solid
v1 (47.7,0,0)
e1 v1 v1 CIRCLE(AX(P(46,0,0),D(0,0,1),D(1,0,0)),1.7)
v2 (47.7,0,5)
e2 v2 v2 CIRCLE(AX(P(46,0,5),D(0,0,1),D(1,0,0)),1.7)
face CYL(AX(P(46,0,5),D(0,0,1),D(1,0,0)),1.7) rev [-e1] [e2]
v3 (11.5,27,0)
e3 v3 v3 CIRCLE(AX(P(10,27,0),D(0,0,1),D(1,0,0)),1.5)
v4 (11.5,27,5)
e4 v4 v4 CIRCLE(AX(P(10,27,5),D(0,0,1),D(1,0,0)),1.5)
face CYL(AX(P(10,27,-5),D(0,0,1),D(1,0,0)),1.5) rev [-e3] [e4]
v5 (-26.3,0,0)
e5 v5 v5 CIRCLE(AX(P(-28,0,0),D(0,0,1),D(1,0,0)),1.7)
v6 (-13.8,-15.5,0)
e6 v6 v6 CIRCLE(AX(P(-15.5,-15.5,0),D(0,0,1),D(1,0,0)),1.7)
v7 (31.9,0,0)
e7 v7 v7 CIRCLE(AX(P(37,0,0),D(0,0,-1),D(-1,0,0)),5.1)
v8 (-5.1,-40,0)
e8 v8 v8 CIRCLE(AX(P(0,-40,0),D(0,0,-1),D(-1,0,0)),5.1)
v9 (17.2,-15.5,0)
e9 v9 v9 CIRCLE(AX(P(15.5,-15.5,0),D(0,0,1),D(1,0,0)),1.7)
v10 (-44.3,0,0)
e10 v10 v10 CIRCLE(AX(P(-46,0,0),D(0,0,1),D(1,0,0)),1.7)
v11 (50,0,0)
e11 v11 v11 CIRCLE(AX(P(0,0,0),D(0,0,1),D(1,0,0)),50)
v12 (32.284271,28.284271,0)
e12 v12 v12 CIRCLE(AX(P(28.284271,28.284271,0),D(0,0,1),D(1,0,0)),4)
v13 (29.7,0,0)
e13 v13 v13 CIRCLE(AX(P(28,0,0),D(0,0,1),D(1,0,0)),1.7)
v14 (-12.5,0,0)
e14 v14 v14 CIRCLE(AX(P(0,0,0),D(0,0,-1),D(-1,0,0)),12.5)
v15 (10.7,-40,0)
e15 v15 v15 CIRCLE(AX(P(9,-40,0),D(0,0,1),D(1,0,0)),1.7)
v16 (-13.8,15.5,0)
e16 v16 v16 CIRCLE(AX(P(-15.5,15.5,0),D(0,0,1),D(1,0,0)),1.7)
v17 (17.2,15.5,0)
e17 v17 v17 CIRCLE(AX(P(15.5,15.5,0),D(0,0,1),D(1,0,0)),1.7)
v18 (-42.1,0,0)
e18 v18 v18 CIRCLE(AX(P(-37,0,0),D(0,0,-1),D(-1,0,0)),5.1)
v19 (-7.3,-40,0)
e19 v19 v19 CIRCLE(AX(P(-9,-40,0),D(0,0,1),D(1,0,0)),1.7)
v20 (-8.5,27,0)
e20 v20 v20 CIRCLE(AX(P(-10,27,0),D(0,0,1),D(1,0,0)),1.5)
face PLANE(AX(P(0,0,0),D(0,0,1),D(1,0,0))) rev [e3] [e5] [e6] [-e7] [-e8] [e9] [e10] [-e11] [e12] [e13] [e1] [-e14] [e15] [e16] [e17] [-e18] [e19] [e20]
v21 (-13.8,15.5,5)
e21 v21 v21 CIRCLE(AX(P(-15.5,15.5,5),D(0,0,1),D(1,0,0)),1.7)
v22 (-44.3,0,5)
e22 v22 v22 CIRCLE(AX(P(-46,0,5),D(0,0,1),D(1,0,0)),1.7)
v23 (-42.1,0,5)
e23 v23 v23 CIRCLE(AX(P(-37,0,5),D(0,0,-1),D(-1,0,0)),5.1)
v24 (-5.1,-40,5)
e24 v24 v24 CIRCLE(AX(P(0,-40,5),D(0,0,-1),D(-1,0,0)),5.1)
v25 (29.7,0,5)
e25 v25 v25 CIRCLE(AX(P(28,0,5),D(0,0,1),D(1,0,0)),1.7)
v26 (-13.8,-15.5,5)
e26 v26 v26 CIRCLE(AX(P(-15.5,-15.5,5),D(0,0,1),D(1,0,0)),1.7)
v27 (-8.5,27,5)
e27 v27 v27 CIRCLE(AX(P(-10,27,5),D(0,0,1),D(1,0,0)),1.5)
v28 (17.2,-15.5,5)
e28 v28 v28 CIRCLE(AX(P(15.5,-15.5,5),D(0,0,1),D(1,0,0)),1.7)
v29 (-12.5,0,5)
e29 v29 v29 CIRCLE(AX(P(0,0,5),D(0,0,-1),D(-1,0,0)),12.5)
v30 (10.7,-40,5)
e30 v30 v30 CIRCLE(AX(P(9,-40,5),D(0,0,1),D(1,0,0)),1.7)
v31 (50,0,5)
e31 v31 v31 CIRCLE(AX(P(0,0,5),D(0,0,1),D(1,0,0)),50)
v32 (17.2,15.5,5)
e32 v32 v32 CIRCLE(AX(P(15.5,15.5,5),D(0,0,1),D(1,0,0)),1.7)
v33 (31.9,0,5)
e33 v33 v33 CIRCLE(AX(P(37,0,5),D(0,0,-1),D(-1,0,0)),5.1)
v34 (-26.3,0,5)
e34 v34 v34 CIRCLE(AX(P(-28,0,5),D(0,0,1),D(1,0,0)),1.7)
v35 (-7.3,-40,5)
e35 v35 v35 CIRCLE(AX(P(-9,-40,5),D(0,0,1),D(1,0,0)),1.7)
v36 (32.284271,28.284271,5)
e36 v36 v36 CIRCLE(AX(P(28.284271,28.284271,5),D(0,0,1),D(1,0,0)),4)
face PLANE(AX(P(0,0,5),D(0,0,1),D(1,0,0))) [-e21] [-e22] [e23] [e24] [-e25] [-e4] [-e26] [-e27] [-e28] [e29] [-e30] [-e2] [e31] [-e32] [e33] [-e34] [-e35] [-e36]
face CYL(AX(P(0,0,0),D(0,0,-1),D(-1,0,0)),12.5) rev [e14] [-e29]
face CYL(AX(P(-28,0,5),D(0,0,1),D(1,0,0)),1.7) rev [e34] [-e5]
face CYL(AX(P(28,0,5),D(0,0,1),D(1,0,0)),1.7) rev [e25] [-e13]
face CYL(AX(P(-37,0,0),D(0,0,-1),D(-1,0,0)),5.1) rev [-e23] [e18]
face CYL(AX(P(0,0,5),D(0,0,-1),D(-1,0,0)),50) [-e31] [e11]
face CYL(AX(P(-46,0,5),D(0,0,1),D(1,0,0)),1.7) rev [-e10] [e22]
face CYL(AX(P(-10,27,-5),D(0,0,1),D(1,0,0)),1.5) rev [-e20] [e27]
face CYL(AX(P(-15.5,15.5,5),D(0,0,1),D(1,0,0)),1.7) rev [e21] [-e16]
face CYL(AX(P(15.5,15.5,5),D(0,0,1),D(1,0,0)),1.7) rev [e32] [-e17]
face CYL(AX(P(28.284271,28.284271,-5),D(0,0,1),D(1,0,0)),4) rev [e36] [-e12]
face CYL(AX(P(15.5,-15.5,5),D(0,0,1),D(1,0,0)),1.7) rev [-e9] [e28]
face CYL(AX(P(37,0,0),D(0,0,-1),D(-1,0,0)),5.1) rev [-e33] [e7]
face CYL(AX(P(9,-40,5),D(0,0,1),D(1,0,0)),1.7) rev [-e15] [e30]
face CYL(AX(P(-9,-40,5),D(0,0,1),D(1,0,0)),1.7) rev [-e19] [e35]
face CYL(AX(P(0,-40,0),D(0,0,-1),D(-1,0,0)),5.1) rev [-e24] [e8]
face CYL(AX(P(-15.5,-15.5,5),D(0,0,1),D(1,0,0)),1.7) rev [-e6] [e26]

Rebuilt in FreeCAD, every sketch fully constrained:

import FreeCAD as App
import Part
import Sketcher

doc = App.newDocument("Part")
params = doc.addObject("Spreadsheet::Sheet", "Params")
for row, (alias, value) in enumerate([
    ("sketch1_diameter", "100 mm"),
    ("pad1_length", "5 mm"),
    ("sketch2_diameter", "25 mm"),
    ("hole_diameter", "25 mm"),
    ("sketch3_diameter", "10.2 mm"),
    ("hole2_diameter", "10.2 mm"),
    ("sketch4_diameter", "3.4 mm"),
    ("hole3_diameter", "3.4 mm"),
    ("sketch5_diameter", "3.4 mm"),
    ("hole4_diameter", "3.4 mm"),
    ("sketch6_diameter", "3 mm"),
    ("pocket1_length", "10 mm"),
    ("sketch7_diameter", "8 mm"),
    ("pocket2_length", "10 mm"),
], start=1):
    params.set(f"A{row}", alias)
    params.set(f"B{row}", "=" + value)
    params.setAlias(f"B{row}", alias)

body = doc.addObject("PartDesign::Body", "Body")

# Sketch on XY plane
sketch1 = body.newObject("Sketcher::SketchObject", "Sketch")
sketch1.AttachmentSupport = (doc.getObject("XY_Plane"), [""])
sketch1.MapMode = "FlatFace"
sketch1.addGeometry(Part.Circle(App.Vector(0, 0, 0), App.Vector(0, 0, 1), 50), False)
sketch1.addConstraint([
    Sketcher.Constraint("Coincident", 0, 3, -1, 1),
    Sketcher.Constraint("Diameter", 0, 100.0),
])
sketch1.setExpression("Constraints[1]", "Params.sketch1_diameter")
pad1 = body.newObject("PartDesign::Pad", "Pad")
pad1.Profile = sketch1
pad1.setExpression("Length", "Params.pad1_length")

# Sketch on XY plane
sketch2 = body.newObject("Sketcher::SketchObject", "Sketch001")
sketch2.AttachmentSupport = (doc.getObject("XY_Plane"), [""])
sketch2.MapMode = "FlatFace"
sketch2.addGeometry(Part.Circle(App.Vector(0, 0, 0), App.Vector(0, 0, 1), 12), False)
sketch2.addConstraint([
    Sketcher.Constraint("Coincident", 0, 3, -1, 1),
    Sketcher.Constraint("Diameter", 0, 25.0),
])
sketch2.setExpression("Constraints[1]", "Params.sketch2_diameter")
doc.recompute()
hole = body.newObject("PartDesign::Hole", "Hole")
hole.Profile = sketch2
hole.ThreadType = "None"
hole.setExpression("Diameter", "Params.hole_diameter")
hole.DepthType = "ThroughAll"
hole.Reversed = True

# Sketch on XY plane
sketch3 = body.newObject("Sketcher::SketchObject", "Sketch002")
sketch3.AttachmentSupport = (doc.getObject("XY_Plane"), [""])
sketch3.MapMode = "FlatFace"
sketch3.addGeometry([
    Part.Circle(App.Vector(-37, 0, 0), App.Vector(0, 0, 1), 5),
    Part.Circle(App.Vector(37, 0, 0), App.Vector(0, 0, 1), 5),
    Part.Circle(App.Vector(0, -40, 0), App.Vector(0, 0, 1), 5),
], False)
sketch3.addConstraint([
    Sketcher.Constraint("Equal", 0, 1),
    Sketcher.Constraint("Equal", 1, 2),
    Sketcher.Constraint("Symmetric", 0, 3, 1, 3, -1, 1),
    Sketcher.Constraint("PointOnObject", 0, 3, -1),
    Sketcher.Constraint("PointOnObject", 2, 3, -2),
    Sketcher.Constraint("Diameter", 0, 10.2),
    Sketcher.Constraint("DistanceX", 0, 3, -1, 1, 37.0),
    Sketcher.Constraint("DistanceY", 2, 3, -1, 1, 40.0),
])
sketch3.setExpression("Constraints[5]", "Params.sketch3_diameter")
doc.recompute()
hole2 = body.newObject("PartDesign::Hole", "Hole001")
hole2.Profile = sketch3
hole2.ThreadType = "None"
hole2.setExpression("Diameter", "Params.hole2_diameter")
hole2.DepthType = "ThroughAll"
hole2.Reversed = True

# Sketch on XY plane
sketch4 = body.newObject("Sketcher::SketchObject", "Sketch003")
sketch4.AttachmentSupport = (doc.getObject("XY_Plane"), [""])
sketch4.MapMode = "FlatFace"
sketch4.AttachmentOffset = App.Placement(App.Vector(0, 0, 5), App.Rotation())
sketch4.addGeometry([
    Part.Circle(App.Vector(46, 0, 0), App.Vector(0, 0, 1), 1.7),  # 0
    Part.Circle(App.Vector(28, 0, 0), App.Vector(0, 0, 1), 1.7),  # 1
    Part.Circle(App.Vector(9, -40, 0), App.Vector(0, 0, 1), 1.7),  # 2
    Part.Circle(App.Vector(-9, -40, 0), App.Vector(0, 0, 1), 1.7),  # 3
    Part.Circle(App.Vector(-46, 0, 0), App.Vector(0, 0, 1), 1.7),  # 4
    Part.Circle(App.Vector(-28, 0, 0), App.Vector(0, 0, 1), 1.7),  # 5
], False)
sketch4.addConstraint([
    Sketcher.Constraint("Equal", 0, 1),
    Sketcher.Constraint("Equal", 1, 2),
    Sketcher.Constraint("Equal", 2, 3),
    Sketcher.Constraint("Equal", 3, 4),
    Sketcher.Constraint("Equal", 4, 5),
    Sketcher.Constraint("Symmetric", 0, 3, 4, 3, -1, 1),
    Sketcher.Constraint("Symmetric", 1, 3, 5, 3, -1, 1),
    Sketcher.Constraint("Symmetric", 2, 3, 3, 3, -2),
    Sketcher.Constraint("PointOnObject", 0, 3, -1),
    Sketcher.Constraint("PointOnObject", 1, 3, -1),
    Sketcher.Constraint("Diameter", 0, 3.4),
    Sketcher.Constraint("DistanceX", -1, 1, 0, 3, 46.0),
    Sketcher.Constraint("DistanceX", -1, 1, 1, 3, 28.0),
    Sketcher.Constraint("DistanceX", -1, 1, 2, 3, 9.0),
    Sketcher.Constraint("DistanceY", 2, 3, -1, 1, 40.0),
])
sketch4.setExpression("Constraints[10]", "Params.sketch4_diameter")
doc.recompute()
hole3 = body.newObject("PartDesign::Hole", "Hole002")
hole3.Profile = sketch4
hole3.ThreadType = "None"
hole3.setExpression("Diameter", "Params.hole3_diameter")
hole3.DepthType = "ThroughAll"

# Sketch on XY plane
sketch5 = body.newObject("Sketcher::SketchObject", "Sketch004")
sketch5.AttachmentSupport = (doc.getObject("XY_Plane"), [""])
sketch5.MapMode = "FlatFace"
sketch5.AttachmentOffset = App.Placement(App.Vector(0, 0, 5), App.Rotation())
sketch5.addGeometry([
    Part.Circle(App.Vector(15.5, 15.5, 0), App.Vector(0, 0, 1), 1.7),
    Part.Circle(App.Vector(15.5, -15.5, 0), App.Vector(0, 0, 1), 1.7),
    Part.Circle(App.Vector(-15.5, -15.5, 0), App.Vector(0, 0, 1), 1.7),
    Part.Circle(App.Vector(-15.5, 15.5, 0), App.Vector(0, 0, 1), 1.7),
], False)
sketch5.addConstraint([
    Sketcher.Constraint("Equal", 0, 1),
    Sketcher.Constraint("Equal", 1, 2),
    Sketcher.Constraint("Equal", 2, 3),
    Sketcher.Constraint("Symmetric", 0, 3, 2, 3, -1, 1),
    Sketcher.Constraint("Symmetric", 1, 3, 3, 3, -1, 1),
    Sketcher.Constraint("Symmetric", 1, 3, 2, 3, -2),
    Sketcher.Constraint("Diameter", 0, 3.4),
    Sketcher.Constraint("DistanceY", 1, 3, 0, 3, 31.0),
    Sketcher.Constraint("DistanceX", 2, 3, 1, 3, 31.0),
])
sketch5.setExpression("Constraints[6]", "Params.sketch5_diameter")
doc.recompute()
hole4 = body.newObject("PartDesign::Hole", "Hole003")
hole4.Profile = sketch5
hole4.ThreadType = "None"
hole4.setExpression("Diameter", "Params.hole4_diameter")
hole4.DepthType = "ThroughAll"

# Sketch on XY plane
sketch6 = body.newObject("Sketcher::SketchObject", "Sketch005")
sketch6.AttachmentSupport = (doc.getObject("XY_Plane"), [""])
sketch6.MapMode = "FlatFace"
sketch6.AttachmentOffset = App.Placement(App.Vector(0, 0, 5), App.Rotation())
sketch6.addGeometry([
    Part.Circle(App.Vector(-10, 27, 0), App.Vector(0, 0, 1), 1.5),
    Part.Circle(App.Vector(10, 27, 0), App.Vector(0, 0, 1), 1.5),
], False)
sketch6.addConstraint([
    Sketcher.Constraint("Equal", 0, 1),
    Sketcher.Constraint("Symmetric", 0, 3, 1, 3, -2),
    Sketcher.Constraint("Diameter", 0, 3.0),
    Sketcher.Constraint("DistanceX", 0, 3, -1, 1, 10.0),
    Sketcher.Constraint("DistanceY", -1, 1, 0, 3, 27.0),
])
sketch6.setExpression("Constraints[2]", "Params.sketch6_diameter")
pocket1 = body.newObject("PartDesign::Pocket", "Pocket")
pocket1.Profile = sketch6
pocket1.setExpression("Length", "Params.pocket1_length")

# Sketch on XY plane
sketch7 = body.newObject("Sketcher::SketchObject", "Sketch006")
sketch7.AttachmentSupport = (doc.getObject("XY_Plane"), [""])
sketch7.MapMode = "FlatFace"
sketch7.AttachmentOffset = App.Placement(App.Vector(0, 0, 5), App.Rotation())
sketch7.addGeometry(Part.Circle(App.Vector(28.3, 28.3, 0), App.Vector(0, 0, 1), 4), False)
sketch7.addConstraint([
    Sketcher.Constraint("Diameter", 0, 8.0),
    Sketcher.Constraint("DistanceX", -1, 1, 0, 3, 28.284271),
    Sketcher.Constraint("DistanceY", -1, 1, 0, 3, 28.284271),
])
sketch7.setExpression("Constraints[0]", "Params.sketch7_diameter")
pocket2 = body.newObject("PartDesign::Pocket", "Pocket001")
pocket2.Profile = sketch7
pocket2.setExpression("Length", "Params.pocket2_length")

doc.recompute()
